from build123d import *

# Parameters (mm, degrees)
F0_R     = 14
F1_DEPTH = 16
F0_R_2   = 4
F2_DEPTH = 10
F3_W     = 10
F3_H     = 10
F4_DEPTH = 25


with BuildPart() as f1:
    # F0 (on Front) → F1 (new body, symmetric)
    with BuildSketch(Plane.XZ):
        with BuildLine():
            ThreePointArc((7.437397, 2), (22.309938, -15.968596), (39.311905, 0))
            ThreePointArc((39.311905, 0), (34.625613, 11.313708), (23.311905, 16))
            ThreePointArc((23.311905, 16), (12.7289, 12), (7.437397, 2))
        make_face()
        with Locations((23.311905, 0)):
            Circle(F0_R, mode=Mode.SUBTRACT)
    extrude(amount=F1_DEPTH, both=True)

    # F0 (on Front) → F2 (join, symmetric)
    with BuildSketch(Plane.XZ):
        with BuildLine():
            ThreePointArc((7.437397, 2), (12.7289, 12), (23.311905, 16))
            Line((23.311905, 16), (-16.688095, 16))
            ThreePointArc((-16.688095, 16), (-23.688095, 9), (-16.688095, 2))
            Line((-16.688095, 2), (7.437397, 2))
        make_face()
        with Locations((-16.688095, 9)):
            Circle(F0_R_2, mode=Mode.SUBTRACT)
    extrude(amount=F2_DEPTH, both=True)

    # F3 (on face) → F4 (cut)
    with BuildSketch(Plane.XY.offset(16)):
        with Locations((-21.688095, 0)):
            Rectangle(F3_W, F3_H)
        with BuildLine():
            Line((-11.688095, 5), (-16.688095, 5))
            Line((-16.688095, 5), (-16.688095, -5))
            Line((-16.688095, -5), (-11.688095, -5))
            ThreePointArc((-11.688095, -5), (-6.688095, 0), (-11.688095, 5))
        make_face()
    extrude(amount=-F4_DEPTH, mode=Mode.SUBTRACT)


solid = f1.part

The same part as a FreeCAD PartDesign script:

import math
import FreeCAD as App
import Part
import Sketcher
from FreeCAD import Vector

doc = App.newDocument("Part")
body = doc.addObject("PartDesign::Body", "Body")

# Sketch on XZ plane
sketch1 = body.newObject("Sketcher::SketchObject", "Sketch")
sketch1.AttachmentSupport = (doc.getObject("XZ_Plane"), [""])
sketch1.MapMode = "FlatFace"
sketch1.addGeometry(Part.ArcOfCircle(Part.Circle(Vector(23.311905, 0, 0), Vector(0, 0, 1), 16), math.radians(172.819245), math.radians(359.999999)), False)
sketch1.addGeometry(Part.ArcOfCircle(Part.Circle(Vector(23.311903, -0.000002, 0), Vector(0, 0, 1), 16.000002), math.radians(0.000006), math.radians(89.999994)), False)
sketch1.addGeometry(Part.ArcOfCircle(Part.Circle(Vector(23.311906, -0.000001, 0), Vector(0, 0, 1), 16.000001), math.radians(90.000002), math.radians(172.819242)), False)
sketch1.addGeometry(Part.Circle(Vector(23.311905, 0, 0), Vector(0, 0, 1), 14), False)
sketch1.addConstraint(Sketcher.Constraint("Tangent", 0, 2, 1, 1))
sketch1.addConstraint(Sketcher.Constraint("Tangent", 1, 2, 2, 1))
sketch1.addConstraint(Sketcher.Constraint("Tangent", 2, 2, 0, 1))
sketch1.addConstraint(Sketcher.Constraint("Coincident", 3, 3, 0, 3))
sketch1.addConstraint(Sketcher.Constraint("PointOnObject", 0, 3, -1))
sketch1.addConstraint(Sketcher.Constraint("PointOnObject", 0, 2, -1))
sketch1.addConstraint(Sketcher.Constraint("Vertical", 3, 3, 1, 2))
sketch1.addConstraint(Sketcher.Constraint("Diameter", 3, 28.0))
sketch1.addConstraint(Sketcher.Constraint("Radius", 0, 16.0))
sketch1.addConstraint(Sketcher.Constraint("DistanceY", -1, 1, 2, 2, 2.0))
sketch1.addConstraint(Sketcher.Constraint("DistanceX", -1, 1, 0, 3, 23.311905))
pad1 = body.newObject("PartDesign::Pad", "Pad")
pad1.Profile = sketch1
pad1.Length = 32
pad1.Midplane = True

# Sketch on XZ plane
sketch2 = body.newObject("Sketcher::SketchObject", "Sketch001")
sketch2.AttachmentSupport = (doc.getObject("XZ_Plane"), [""])
sketch2.MapMode = "FlatFace"
sketch2.addGeometry(Part.ArcOfCircle(Part.Circle(Vector(23.311906, -0.000001, 0), Vector(0, 0, 1), 16.000001), math.radians(90.000002), math.radians(172.819242)), False)
sketch2.addGeometry(Part.LineSegment(Vector(23.311905, 16, 0), Vector(-16.688095, 16, 0)), False)
sketch2.addGeometry(Part.ArcOfCircle(Part.Circle(Vector(-16.688095, 9, 0), Vector(0, 0, 1), 7), math.radians(90), math.radians(270)), False)
sketch2.addGeometry(Part.LineSegment(Vector(-16.688095, 2, 0), Vector(7.437397, 2, 0)), False)
sketch2.addGeometry(Part.Circle(Vector(-16.688095, 9, 0), Vector(0, 0, 1), 4), False)
sketch2.addConstraint(Sketcher.Constraint("Tangent", 0, 1, 1, 1))
sketch2.addConstraint(Sketcher.Constraint("Tangent", 1, 2, 2, 1))
sketch2.addConstraint(Sketcher.Constraint("Tangent", 2, 2, 3, 1))
sketch2.addConstraint(Sketcher.Constraint("Coincident", 3, 2, 0, 2))
sketch2.addConstraint(Sketcher.Constraint("Horizontal", 1))
sketch2.addConstraint(Sketcher.Constraint("Horizontal", 3))
sketch2.addConstraint(Sketcher.Constraint("Coincident", 4, 3, 2, 3))
sketch2.addConstraint(Sketcher.Constraint("PointOnObject", 0, 3, -1))
sketch2.addConstraint(Sketcher.Constraint("Diameter", 4, 8.0))
sketch2.addConstraint(Sketcher.Constraint("Radius", 0, 16.000001))
sketch2.addConstraint(Sketcher.Constraint("Radius", 2, 7.0))
sketch2.addConstraint(Sketcher.Constraint("DistanceX", 1, 2, 1, 1, 40.0))
sketch2.addConstraint(Sketcher.Constraint("DistanceX", -1, 1, 0, 3, 23.311906))
pad2 = body.newObject("PartDesign::Pad", "Pad001")
pad2.Profile = sketch2
pad2.Length = 20
pad2.Midplane = True

# Sketch on XY plane
sketch3 = body.newObject("Sketcher::SketchObject", "Sketch002")
sketch3.AttachmentSupport = (doc.getObject("XY_Plane"), [""])
sketch3.MapMode = "FlatFace"
sketch3.AttachmentOffset = App.Placement(Vector(0, 0, 16), App.Rotation())
sketch3.addGeometry(Part.LineSegment(Vector(-26.688095, 5, 0), Vector(-26.688095, -5, 0)), False)
sketch3.addGeometry(Part.LineSegment(Vector(-26.688095, -5, 0), Vector(-11.688095, -5, 0)), False)
sketch3.addGeometry(Part.ArcOfCircle(Part.Circle(Vector(-11.688095, 0, 0), Vector(0, 0, 1), 5), math.radians(-90), math.radians(90)), False)
sketch3.addGeometry(Part.LineSegment(Vector(-11.688095, 5, 0), Vector(-26.688095, 5, 0)), False)
sketch3.addConstraint(Sketcher.Constraint("Coincident", 0, 2, 1, 1))
sketch3.addConstraint(Sketcher.Constraint("Tangent", 1, 2, 2, 1))
sketch3.addConstraint(Sketcher.Constraint("Tangent", 2, 2, 3, 1))
sketch3.addConstraint(Sketcher.Constraint("Coincident", 3, 2, 0, 1))
sketch3.addConstraint(Sketcher.Constraint("Vertical", 0))
sketch3.addConstraint(Sketcher.Constraint("Horizontal", 1))
sketch3.addConstraint(Sketcher.Constraint("Horizontal", 3))
sketch3.addConstraint(Sketcher.Constraint("PointOnObject", 2, 3, -1))
sketch3.addConstraint(Sketcher.Constraint("Radius", 2, 5.0))
sketch3.addConstraint(Sketcher.Constraint("DistanceX", 1, 1, 1, 2, 15.0))
sketch3.addConstraint(Sketcher.Constraint("DistanceX", 2, 3, -1, 1, 11.688095))
pocket1 = body.newObject("PartDesign::Pocket", "Pocket")
pocket1.Profile = sketch3
pocket1.Length = 25

doc.recompute()
